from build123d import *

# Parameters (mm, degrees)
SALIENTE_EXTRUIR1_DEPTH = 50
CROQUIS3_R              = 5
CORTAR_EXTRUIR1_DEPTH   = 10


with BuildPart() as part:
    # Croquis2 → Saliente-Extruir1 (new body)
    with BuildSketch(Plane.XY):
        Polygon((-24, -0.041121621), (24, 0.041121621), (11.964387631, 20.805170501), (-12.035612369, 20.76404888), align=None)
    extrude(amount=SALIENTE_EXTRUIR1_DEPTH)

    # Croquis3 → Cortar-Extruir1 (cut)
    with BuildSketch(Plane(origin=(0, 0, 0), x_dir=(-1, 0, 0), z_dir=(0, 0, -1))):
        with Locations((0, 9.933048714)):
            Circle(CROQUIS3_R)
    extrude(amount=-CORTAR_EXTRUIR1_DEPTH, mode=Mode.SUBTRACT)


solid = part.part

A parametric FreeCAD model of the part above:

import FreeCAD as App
import Part
import Sketcher
from FreeCAD import Vector
Q = App.Units.Quantity


def add_polygon(sketch, points):
    """Adds a closed chain of lines whose ends are joined by coincident constraints."""
    first, n = sketch.GeometryCount, len(points)
    for a, b in zip(points, points[1:] + points[:1]):
        sketch.addGeometry(Part.LineSegment(App.Vector(*a, 0), App.Vector(*b, 0)), False)
    for i in range(n):
        sketch.addConstraint(Sketcher.Constraint("Coincident", first + i, 2, first + (i + 1) % n, 1))

doc = App.newDocument("Part")
body = doc.addObject("PartDesign::Body", "Body")

# Sketch on XY plane
sketch1 = body.newObject("Sketcher::SketchObject", "Sketch")
sketch1.AttachmentSupport = (doc.getObject("XY_Plane"), [""])
sketch1.MapMode = "FlatFace"
add_polygon(sketch1, [(-24, -0.041122), (24, 0.041122), (11.964388, 20.805171), (-12.035612, 20.764049)])  # lines 0-3
sketch1.addConstraint([
    Sketcher.Constraint("Symmetric", 0, 2, 3, 2, -1, 1),
    Sketcher.Constraint("Parallel", 0, 2),
    Sketcher.Constraint("Equal", 1, 2),
    Sketcher.Constraint("Equal", 2, 3),
    Sketcher.Constraint("DistanceX", -1, 1, 0, 2, Q("24 mm")),
    Sketcher.Constraint("DistanceX", 2, 2, 1, 2, Q("24 mm")),
    Sketcher.Constraint("DistanceY", -1, 1, 0, 2, Q("0.041122 mm")),
])
pad1 = body.newObject("PartDesign::Pad", "Pad")
pad1.Profile = sketch1
pad1.Length = 50

# Sketch on XY plane
sketch2 = body.newObject("Sketcher::SketchObject", "Sketch001")
sketch2.AttachmentSupport = (doc.getObject("XY_Plane"), [""])
sketch2.MapMode = "FlatFace"
sketch2.addGeometry(Part.Circle(Vector(0, 9.933049, 0), Vector(0, 0, 1), 5), False)
sketch2.addConstraint([
    Sketcher.Constraint("PointOnObject", 0, 3, -2),
    Sketcher.Constraint("Diameter", 0, Q("10 mm")),
    Sketcher.Constraint("DistanceY", -1, 1, 0, 3, Q("9.933049 mm")),
])
pocket1 = body.newObject("PartDesign::Pocket", "Pocket")
pocket1.Profile = sketch2
pocket1.Length = 10
pocket1.Reversed = True

doc.recompute()
